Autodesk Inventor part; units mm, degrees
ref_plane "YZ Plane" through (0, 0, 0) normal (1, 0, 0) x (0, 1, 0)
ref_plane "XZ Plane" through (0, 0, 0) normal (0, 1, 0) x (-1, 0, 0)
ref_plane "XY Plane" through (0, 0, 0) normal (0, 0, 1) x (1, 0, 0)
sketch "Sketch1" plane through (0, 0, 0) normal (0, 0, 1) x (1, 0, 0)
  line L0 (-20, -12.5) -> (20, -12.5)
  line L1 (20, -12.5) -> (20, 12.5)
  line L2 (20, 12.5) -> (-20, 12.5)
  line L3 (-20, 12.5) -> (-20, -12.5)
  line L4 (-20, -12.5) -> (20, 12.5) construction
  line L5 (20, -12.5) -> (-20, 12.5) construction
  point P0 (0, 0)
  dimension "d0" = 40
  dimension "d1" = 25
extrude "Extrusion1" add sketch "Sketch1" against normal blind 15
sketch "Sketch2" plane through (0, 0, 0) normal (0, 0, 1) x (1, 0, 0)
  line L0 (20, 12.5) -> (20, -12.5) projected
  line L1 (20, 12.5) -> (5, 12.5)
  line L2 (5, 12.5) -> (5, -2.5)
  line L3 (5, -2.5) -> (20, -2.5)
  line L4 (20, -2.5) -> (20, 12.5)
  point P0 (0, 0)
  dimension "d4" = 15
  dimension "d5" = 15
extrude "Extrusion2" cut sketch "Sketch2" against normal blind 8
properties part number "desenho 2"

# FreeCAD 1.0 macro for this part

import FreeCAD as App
import Part
import Sketcher
from FreeCAD import Vector
Q = App.Units.Quantity

doc = App.newDocument("Part")
body = doc.addObject("PartDesign::Body", "Body")

sketch1 = doc.addObject("Sketcher::SketchObject", "Sketch")
body.addObject(sketch1)
sketch1.AttachmentSupport = (doc.XY_Plane, [""])
sketch1.MapMode = "FlatFace"
sketch1.addGeometry(Part.LineSegment(Vector(-20, 12, 0), Vector(-20, -12, 0)), False)
sketch1.addGeometry(Part.LineSegment(Vector(-20, -12, 0), Vector(20, -12, 0)), False)
sketch1.addGeometry(Part.LineSegment(Vector(20, -12, 0), Vector(20, 12, 0)), False)
sketch1.addGeometry(Part.LineSegment(Vector(20, 12, 0), Vector(-20, 12, 0)), False)
sketch1.addConstraint(Sketcher.Constraint("Coincident", 0, 2, 1, 1))
sketch1.addConstraint(Sketcher.Constraint("Coincident", 1, 2, 2, 1))
sketch1.addConstraint(Sketcher.Constraint("Coincident", 2, 2, 3, 1))
sketch1.addConstraint(Sketcher.Constraint("Coincident", 3, 2, 0, 1))
sketch1.addConstraint(Sketcher.Constraint("Vertical", 0))
sketch1.addConstraint(Sketcher.Constraint("Horizontal", 1))
sketch1.addConstraint(Sketcher.Constraint("Vertical", 2))
sketch1.addConstraint(Sketcher.Constraint("Horizontal", 3))
sketch1.addConstraint(Sketcher.Constraint("Symmetric", 0, 2, 2, 2, -1, 1))
sketch1.addConstraint(Sketcher.Constraint("DistanceX", 1, 1, 1, 2, Q("40 mm")))
sketch1.addConstraint(Sketcher.Constraint("DistanceY", 0, 2, 0, 1, Q("25 mm")))
pad1 = doc.addObject("PartDesign::Pad", "Pad")
body.addObject(pad1)
pad1.Profile = sketch1
pad1.Length = 15
pad1.Reversed = True

sketch2 = doc.addObject("Sketcher::SketchObject", "Sketch001")
body.addObject(sketch2)
sketch2.AttachmentSupport = (doc.XY_Plane, [""])
sketch2.MapMode = "FlatFace"
sketch2.addGeometry(Part.LineSegment(Vector(20, -2, 0), Vector(20, 12, 0)), False)
sketch2.addGeometry(Part.LineSegment(Vector(20, 12, 0), Vector(5, 12, 0)), False)
sketch2.addGeometry(Part.LineSegment(Vector(5, 12, 0), Vector(5, -2, 0)), False)
sketch2.addGeometry(Part.LineSegment(Vector(5, -2, 0), Vector(20, -2, 0)), False)
sketch2.addConstraint(Sketcher.Constraint("Coincident", 0, 2, 1, 1))
sketch2.addConstraint(Sketcher.Constraint("Coincident", 1, 2, 2, 1))
sketch2.addConstraint(Sketcher.Constraint("Coincident", 2, 2, 3, 1))
sketch2.addConstraint(Sketcher.Constraint("Coincident", 3, 2, 0, 1))
sketch2.addConstraint(Sketcher.Constraint("Vertical", 0))
sketch2.addConstraint(Sketcher.Constraint("Horizontal", 1))
sketch2.addConstraint(Sketcher.Constraint("Vertical", 2))
sketch2.addConstraint(Sketcher.Constraint("Horizontal", 3))
sketch2.addConstraint(Sketcher.Constraint("Equal", 3, 0))
sketch2.addConstraint(Sketcher.Constraint("DistanceX", 1, 2, 1, 1, Q("15 mm")))
sketch2.addConstraint(Sketcher.Constraint("DistanceX", -1, 1, 0, 2, Q("20 mm")))
sketch2.addConstraint(Sketcher.Constraint("DistanceY", -1, 1, 0, 2, Q("12.5 mm")))
pocket1 = doc.addObject("PartDesign::Pocket", "Pocket")
body.addObject(pocket1)
pocket1.Profile = sketch2
pocket1.Length = 8

doc.recompute()
